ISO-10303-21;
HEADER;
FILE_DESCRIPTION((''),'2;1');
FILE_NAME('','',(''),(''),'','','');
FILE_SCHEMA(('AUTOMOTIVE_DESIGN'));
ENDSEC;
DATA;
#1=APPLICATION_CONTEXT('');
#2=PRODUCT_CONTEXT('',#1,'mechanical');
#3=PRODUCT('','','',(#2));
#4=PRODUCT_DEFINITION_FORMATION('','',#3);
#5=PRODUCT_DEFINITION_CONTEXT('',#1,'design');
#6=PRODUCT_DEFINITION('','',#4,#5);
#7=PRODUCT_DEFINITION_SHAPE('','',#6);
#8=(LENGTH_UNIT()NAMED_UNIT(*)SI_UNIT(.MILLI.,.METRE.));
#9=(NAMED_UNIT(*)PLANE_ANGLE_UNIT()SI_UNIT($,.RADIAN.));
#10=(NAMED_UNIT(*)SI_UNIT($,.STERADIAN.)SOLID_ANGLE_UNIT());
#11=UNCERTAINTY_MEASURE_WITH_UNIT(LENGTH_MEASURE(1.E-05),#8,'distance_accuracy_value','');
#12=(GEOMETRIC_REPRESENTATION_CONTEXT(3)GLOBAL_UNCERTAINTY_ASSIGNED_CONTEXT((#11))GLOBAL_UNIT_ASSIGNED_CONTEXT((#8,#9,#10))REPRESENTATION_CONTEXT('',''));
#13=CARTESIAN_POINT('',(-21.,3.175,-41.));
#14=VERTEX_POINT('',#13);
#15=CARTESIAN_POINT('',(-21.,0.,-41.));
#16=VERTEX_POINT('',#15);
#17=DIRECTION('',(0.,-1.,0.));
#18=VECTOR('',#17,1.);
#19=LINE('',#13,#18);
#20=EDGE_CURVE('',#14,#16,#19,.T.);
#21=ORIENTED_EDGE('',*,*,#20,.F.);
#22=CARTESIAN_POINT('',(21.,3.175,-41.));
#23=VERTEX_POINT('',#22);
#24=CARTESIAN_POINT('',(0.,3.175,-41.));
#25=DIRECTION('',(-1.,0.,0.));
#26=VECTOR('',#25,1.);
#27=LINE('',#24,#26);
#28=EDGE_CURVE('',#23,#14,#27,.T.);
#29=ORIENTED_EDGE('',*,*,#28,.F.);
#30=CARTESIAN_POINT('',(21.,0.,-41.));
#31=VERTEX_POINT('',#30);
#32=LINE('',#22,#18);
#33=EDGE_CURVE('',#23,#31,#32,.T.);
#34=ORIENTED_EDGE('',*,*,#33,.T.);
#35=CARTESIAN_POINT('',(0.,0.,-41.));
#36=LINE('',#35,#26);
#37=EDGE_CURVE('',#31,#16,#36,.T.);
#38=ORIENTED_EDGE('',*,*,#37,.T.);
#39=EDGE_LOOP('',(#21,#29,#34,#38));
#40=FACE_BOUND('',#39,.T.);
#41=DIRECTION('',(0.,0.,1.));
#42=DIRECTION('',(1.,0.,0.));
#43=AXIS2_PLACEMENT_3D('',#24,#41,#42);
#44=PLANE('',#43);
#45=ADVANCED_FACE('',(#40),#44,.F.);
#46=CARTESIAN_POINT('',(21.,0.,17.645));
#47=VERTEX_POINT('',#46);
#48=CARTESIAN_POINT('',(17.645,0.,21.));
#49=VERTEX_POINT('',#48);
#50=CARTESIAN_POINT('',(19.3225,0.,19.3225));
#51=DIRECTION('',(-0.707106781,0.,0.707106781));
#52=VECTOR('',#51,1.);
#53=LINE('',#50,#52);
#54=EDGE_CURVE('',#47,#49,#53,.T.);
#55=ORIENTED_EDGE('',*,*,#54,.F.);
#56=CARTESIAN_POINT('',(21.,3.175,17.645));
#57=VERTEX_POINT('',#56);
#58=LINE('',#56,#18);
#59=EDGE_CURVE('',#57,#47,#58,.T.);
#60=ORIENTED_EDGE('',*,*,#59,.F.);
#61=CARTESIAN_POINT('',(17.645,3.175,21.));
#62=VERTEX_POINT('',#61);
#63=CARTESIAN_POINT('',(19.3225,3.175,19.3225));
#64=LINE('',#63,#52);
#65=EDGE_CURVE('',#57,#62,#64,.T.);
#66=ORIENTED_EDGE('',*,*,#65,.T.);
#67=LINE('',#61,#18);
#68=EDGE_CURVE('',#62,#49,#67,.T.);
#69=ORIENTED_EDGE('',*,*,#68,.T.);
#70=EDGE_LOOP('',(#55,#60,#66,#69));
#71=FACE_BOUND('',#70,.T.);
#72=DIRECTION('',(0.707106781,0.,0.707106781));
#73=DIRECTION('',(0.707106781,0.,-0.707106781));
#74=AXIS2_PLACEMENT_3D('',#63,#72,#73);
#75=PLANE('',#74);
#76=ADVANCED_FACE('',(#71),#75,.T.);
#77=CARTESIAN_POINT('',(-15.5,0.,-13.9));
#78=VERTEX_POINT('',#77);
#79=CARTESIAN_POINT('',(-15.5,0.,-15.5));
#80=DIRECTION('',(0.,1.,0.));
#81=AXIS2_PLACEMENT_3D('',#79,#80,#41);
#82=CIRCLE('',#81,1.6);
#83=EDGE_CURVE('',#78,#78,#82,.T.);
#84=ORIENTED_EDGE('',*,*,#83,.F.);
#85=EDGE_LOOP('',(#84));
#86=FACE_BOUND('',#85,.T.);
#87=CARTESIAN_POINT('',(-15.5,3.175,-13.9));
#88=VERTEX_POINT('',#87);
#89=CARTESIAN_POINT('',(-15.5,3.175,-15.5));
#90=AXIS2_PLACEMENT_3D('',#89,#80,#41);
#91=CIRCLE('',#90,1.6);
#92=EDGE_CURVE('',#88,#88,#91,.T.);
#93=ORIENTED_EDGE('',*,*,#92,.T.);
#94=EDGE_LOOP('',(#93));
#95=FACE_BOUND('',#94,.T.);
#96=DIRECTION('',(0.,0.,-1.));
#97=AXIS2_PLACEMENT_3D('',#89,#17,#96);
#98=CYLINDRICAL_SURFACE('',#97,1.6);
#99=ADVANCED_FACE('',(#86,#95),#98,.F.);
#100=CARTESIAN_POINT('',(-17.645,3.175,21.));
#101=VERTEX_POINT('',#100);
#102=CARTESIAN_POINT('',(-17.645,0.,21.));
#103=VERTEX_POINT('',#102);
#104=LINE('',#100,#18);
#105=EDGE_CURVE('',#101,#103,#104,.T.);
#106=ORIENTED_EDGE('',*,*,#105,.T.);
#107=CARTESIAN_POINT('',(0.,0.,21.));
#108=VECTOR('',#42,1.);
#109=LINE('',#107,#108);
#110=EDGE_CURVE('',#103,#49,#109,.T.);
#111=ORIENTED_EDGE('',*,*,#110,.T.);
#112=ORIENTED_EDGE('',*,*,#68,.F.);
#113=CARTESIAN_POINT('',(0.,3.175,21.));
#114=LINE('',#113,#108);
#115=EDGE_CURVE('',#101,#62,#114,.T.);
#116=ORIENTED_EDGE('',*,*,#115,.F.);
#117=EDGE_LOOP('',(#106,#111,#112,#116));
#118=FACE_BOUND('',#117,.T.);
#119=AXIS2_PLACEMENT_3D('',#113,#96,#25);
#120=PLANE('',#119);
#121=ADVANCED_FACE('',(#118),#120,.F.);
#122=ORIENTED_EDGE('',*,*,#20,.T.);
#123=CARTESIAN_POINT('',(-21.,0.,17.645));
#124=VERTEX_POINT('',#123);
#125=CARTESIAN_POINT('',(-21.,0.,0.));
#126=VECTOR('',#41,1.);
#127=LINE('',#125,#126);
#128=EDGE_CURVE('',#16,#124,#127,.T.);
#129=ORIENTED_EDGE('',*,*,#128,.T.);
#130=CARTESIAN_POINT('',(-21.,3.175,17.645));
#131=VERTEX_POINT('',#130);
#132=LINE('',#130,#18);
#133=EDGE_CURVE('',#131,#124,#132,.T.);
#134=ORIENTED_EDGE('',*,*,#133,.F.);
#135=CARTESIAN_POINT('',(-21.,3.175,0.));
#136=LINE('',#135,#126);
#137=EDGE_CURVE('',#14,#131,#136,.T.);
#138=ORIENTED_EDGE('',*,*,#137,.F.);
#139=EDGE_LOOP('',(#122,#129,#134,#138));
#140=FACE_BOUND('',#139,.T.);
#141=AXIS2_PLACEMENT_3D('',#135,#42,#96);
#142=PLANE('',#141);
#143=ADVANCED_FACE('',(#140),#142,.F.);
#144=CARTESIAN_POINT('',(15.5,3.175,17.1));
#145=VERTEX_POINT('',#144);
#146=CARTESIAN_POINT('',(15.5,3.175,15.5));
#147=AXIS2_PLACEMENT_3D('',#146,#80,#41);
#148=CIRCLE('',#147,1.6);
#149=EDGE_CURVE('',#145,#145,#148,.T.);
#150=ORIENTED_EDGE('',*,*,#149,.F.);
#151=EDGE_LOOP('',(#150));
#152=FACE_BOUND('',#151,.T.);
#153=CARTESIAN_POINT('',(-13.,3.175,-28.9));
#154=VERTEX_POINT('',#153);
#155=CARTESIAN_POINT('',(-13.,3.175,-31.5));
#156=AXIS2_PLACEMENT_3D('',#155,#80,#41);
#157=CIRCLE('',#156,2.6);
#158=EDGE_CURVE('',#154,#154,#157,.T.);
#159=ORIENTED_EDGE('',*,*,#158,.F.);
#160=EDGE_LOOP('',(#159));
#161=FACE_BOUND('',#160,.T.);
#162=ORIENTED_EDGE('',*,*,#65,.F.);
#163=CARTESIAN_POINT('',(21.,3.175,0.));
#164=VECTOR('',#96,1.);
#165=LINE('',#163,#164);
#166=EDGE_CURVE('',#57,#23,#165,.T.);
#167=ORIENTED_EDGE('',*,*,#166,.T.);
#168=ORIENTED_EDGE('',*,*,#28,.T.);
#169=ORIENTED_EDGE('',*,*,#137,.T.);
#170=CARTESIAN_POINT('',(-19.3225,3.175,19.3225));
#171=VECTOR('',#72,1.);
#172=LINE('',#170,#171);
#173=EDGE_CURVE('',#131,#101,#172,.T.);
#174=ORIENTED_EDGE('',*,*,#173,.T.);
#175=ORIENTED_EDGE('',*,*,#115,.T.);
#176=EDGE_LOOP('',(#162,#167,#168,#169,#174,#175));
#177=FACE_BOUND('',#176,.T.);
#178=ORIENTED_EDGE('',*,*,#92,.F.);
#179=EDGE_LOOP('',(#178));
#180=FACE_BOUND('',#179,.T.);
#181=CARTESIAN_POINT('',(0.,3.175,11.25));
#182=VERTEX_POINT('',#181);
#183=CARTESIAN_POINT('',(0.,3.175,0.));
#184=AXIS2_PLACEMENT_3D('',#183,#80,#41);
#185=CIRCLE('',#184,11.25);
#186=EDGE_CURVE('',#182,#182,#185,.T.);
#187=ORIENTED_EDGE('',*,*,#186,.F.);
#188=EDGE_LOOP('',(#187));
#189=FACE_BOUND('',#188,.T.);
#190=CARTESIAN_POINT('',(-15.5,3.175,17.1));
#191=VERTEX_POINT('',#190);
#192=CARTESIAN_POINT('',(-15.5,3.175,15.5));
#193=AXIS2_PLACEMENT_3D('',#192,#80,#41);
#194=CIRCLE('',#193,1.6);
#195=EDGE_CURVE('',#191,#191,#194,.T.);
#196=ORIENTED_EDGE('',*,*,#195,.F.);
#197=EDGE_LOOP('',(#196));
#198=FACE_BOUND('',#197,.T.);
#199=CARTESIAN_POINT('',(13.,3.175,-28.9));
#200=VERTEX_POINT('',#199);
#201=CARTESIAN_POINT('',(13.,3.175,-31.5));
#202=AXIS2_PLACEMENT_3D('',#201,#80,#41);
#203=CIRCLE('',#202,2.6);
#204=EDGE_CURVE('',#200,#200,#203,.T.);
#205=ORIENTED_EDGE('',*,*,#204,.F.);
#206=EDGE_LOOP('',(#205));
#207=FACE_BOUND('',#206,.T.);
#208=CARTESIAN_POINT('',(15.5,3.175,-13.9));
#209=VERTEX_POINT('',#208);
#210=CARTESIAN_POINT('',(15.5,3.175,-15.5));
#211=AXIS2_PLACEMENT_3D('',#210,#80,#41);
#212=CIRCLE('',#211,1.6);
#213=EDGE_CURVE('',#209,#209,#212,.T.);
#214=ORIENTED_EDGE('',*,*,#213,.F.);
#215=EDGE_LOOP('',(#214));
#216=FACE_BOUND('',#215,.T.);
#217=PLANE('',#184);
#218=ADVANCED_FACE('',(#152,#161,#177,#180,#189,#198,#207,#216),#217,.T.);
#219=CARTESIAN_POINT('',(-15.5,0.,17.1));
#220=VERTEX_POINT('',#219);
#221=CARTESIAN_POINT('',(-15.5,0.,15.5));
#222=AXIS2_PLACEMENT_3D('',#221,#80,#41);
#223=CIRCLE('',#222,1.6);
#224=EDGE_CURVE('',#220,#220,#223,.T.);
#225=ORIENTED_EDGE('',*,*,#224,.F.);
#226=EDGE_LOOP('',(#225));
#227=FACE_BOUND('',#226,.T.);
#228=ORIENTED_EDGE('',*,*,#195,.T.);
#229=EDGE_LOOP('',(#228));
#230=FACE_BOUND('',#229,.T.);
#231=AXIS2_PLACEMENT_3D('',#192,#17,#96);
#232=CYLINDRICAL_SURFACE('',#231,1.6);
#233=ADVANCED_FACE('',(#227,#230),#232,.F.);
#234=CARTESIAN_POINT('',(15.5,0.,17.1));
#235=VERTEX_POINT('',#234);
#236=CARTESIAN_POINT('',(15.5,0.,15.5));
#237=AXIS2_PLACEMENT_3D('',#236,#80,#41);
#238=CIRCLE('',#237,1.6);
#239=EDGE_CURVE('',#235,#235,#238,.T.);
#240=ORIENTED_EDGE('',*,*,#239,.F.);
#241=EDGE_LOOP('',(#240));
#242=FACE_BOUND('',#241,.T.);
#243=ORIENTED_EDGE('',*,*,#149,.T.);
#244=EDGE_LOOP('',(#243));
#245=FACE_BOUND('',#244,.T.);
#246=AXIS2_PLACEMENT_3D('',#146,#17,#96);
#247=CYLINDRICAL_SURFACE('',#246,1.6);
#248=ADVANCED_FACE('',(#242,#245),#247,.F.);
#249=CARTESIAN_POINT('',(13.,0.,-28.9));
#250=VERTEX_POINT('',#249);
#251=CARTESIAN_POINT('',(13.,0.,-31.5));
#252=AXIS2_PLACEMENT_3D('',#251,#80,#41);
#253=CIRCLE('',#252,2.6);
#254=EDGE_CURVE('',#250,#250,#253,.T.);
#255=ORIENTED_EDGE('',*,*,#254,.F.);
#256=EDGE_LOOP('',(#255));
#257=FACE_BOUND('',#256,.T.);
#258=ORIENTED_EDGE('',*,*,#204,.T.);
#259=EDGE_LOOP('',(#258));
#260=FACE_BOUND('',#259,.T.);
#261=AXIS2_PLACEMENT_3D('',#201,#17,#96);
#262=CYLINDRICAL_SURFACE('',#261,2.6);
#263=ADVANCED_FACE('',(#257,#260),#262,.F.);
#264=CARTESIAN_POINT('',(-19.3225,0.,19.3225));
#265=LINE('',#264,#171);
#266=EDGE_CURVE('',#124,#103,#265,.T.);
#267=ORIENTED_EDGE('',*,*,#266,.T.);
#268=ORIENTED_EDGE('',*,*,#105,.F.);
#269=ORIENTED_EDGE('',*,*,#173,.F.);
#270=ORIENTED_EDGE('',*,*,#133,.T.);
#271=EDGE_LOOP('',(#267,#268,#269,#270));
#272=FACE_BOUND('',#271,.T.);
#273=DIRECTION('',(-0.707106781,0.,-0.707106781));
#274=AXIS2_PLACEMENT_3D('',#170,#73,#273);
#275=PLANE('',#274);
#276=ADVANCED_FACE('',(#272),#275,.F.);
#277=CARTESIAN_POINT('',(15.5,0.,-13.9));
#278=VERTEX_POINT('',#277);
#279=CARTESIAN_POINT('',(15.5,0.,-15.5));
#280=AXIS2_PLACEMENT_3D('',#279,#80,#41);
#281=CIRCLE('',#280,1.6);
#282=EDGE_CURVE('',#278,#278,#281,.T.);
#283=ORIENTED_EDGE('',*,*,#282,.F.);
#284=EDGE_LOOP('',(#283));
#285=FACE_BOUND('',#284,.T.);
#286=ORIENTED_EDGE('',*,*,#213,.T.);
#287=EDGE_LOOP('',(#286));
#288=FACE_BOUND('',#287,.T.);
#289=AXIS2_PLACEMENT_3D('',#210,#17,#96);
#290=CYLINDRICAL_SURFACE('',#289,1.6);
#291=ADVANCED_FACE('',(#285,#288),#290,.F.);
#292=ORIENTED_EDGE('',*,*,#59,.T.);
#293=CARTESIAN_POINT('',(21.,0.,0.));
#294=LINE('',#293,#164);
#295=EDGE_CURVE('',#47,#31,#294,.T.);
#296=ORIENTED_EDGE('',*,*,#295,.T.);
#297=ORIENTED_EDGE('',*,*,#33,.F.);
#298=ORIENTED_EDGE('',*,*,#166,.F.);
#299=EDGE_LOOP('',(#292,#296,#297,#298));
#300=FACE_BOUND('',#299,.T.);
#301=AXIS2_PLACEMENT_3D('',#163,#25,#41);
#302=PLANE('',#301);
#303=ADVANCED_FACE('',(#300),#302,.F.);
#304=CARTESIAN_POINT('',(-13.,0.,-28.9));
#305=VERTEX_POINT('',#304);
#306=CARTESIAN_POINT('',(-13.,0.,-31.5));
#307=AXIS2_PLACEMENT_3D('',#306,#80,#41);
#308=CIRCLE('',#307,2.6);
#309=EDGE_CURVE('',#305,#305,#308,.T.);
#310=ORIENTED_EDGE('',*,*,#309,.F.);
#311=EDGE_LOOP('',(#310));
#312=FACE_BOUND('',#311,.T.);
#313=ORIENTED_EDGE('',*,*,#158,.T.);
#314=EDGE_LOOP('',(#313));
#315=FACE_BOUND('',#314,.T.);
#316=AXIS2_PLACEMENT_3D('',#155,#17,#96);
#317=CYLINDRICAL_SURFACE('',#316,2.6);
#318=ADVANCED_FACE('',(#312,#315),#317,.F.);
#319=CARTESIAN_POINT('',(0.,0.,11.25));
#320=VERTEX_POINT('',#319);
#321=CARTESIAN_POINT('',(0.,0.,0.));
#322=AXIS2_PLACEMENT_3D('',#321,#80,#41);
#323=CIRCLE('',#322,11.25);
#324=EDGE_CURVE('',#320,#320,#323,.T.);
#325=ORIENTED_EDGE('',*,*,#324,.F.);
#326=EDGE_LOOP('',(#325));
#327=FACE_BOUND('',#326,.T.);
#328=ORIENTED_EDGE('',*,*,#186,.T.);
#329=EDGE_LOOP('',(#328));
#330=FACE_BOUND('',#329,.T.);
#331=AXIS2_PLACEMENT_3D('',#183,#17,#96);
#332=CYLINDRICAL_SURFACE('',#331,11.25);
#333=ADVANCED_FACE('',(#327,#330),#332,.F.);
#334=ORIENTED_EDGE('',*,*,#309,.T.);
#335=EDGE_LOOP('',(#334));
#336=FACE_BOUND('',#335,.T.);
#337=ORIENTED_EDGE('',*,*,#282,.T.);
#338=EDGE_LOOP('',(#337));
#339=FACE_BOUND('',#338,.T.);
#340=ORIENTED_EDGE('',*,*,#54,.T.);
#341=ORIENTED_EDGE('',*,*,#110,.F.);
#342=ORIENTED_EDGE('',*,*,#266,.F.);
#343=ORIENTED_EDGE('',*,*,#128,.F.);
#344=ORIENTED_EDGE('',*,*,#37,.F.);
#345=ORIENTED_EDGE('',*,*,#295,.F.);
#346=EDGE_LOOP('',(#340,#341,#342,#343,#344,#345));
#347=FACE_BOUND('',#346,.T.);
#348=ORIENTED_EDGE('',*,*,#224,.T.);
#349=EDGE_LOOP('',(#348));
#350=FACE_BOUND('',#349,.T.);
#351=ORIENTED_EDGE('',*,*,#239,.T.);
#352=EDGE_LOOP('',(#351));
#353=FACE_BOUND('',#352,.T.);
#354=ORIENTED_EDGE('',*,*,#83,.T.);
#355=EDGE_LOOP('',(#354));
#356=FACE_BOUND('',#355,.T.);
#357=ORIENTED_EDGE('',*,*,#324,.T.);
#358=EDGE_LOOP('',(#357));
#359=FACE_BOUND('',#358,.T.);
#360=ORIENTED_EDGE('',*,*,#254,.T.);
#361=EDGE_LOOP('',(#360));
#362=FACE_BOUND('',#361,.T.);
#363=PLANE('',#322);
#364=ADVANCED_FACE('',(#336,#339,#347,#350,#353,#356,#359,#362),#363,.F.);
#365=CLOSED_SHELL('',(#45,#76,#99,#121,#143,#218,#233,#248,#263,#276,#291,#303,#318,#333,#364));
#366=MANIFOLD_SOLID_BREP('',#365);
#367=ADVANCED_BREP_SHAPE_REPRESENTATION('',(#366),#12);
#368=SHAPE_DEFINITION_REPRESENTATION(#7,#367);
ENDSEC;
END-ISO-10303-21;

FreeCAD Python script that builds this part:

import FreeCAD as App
import Part
import Sketcher

V = App.Vector
Q = App.Units.Quantity


def add_polygon(sketch, points):
    """Adds a closed chain of lines whose ends are joined by coincident constraints."""
    first, n = sketch.GeometryCount, len(points)
    for a, b in zip(points, points[1:] + points[:1]):
        sketch.addGeometry(Part.LineSegment(App.Vector(*a, 0), App.Vector(*b, 0)), False)
    for i in range(n):
        sketch.addConstraint(Sketcher.Constraint("Coincident", first + i, 2, first + (i + 1) % n, 1))

doc = App.newDocument("Part")
params = doc.addObject("Spreadsheet::Sheet", "Params")
for row, (alias, value) in enumerate([
    ("sketch1_diameter", "3.2 mm"),
    ("sketch1_diameter2", "22.5 mm"),
    ("sketch1_diameter3", "5.2 mm"),
    ("sketch1_width", "42 mm"),
    ("sketch1_width2", "35.29 mm"),
    ("pad1_length", "3.175 mm"),
], start=1):
    params.set(f"A{row}", alias)
    params.set(f"B{row}", "=" + value)
    params.setAlias(f"B{row}", alias)

body = doc.addObject("PartDesign::Body", "Body")

# Sketch on XZ plane
sketch1 = body.newObject("Sketcher::SketchObject", "Sketch")
sketch1.AttachmentSupport = (doc.getObject("XZ_Plane"), [""])
sketch1.MapMode = "FlatFace"
add_polygon(sketch1, [(21, -41), (-21, -41), (-21, 17.6), (-17.6, 21), (17.6, 21), (21, 17.6)])  # lines 0-5
sketch1.addGeometry(Part.Circle(V(-15.5, 15.5, 0), V(0, 0, 1), 1.6), False)  # 6
sketch1.addGeometry(Part.Circle(V(15.5, 15.5, 0), V(0, 0, 1), 1.6), False)  # 7
sketch1.addGeometry(Part.Circle(V(0, 0, 0), V(0, 0, 1), 11.2), False)  # 8
sketch1.addGeometry(Part.Circle(V(-15.5, -15.5, 0), V(0, 0, 1), 1.6), False)  # 9
sketch1.addGeometry(Part.Circle(V(-13, -31.5, 0), V(0, 0, 1), 2.6), False)  # 10
sketch1.addGeometry(Part.Circle(V(15.5, -15.5, 0), V(0, 0, 1), 1.6), False)  # 11
sketch1.addGeometry(Part.Circle(V(13, -31.5, 0), V(0, 0, 1), 2.6), False)  # 12
sketch1.addConstraint([
    Sketcher.Constraint("Horizontal", 0),
    Sketcher.Constraint("Vertical", 1),
    Sketcher.Constraint("Horizontal", 3),
    Sketcher.Constraint("Vertical", 5),
    Sketcher.Constraint("Coincident", 8, 3, -1, 1),
    Sketcher.Constraint("Equal", 6, 7),
    Sketcher.Constraint("Equal", 7, 9),
    Sketcher.Constraint("Equal", 9, 11),
    Sketcher.Constraint("Equal", 10, 12),
    Sketcher.Constraint("Symmetric", 7, 3, 9, 3, -1, 1),
    Sketcher.Constraint("Symmetric", 6, 3, 11, 3, -1, 1),
    Sketcher.Constraint("Symmetric", 6, 3, 7, 3, -2),
    Sketcher.Constraint("Symmetric", 10, 3, 12, 3, -2),
    Sketcher.Constraint("Symmetric", 1, 2, 4, 2, -2),
    Sketcher.Constraint("Perpendicular", 2, 4),
    Sketcher.Constraint("Equal", 2, 4),
    Sketcher.Constraint("Diameter", 6, Q("3.2 mm")),
    Sketcher.Constraint("Diameter", 8, Q("22.5 mm")),
    Sketcher.Constraint("Diameter", 10, Q("5.2 mm")),
    Sketcher.Constraint("DistanceX", 0, 2, 0, 1, Q("42 mm")),
    Sketcher.Constraint("DistanceX", 10, 3, -1, 1, Q("13 mm")),
    Sketcher.Constraint("DistanceY", 0, 2, -1, 1, Q("41 mm")),
    Sketcher.Constraint("DistanceY", -1, 1, 2, 2, Q("21 mm")),
    Sketcher.Constraint("DistanceX", 6, 3, 7, 3, Q("31 mm")),
    Sketcher.Constraint("DistanceY", 9, 3, 6, 3, Q("31 mm")),
    Sketcher.Constraint("DistanceY", 10, 3, 9, 3, Q("16 mm")),
    Sketcher.Constraint("DistanceX", 3, 1, 3, 2, Q("35.29 mm")),
])
sketch1.setExpression("Constraints[22]", "Params.sketch1_diameter")
sketch1.setExpression("Constraints[23]", "Params.sketch1_diameter2")
sketch1.setExpression("Constraints[24]", "Params.sketch1_diameter3")
sketch1.setExpression("Constraints[25]", "Params.sketch1_width")
sketch1.setExpression("Constraints[32]", "Params.sketch1_width2")
pad1 = body.newObject("PartDesign::Pad", "Pad")
pad1.Profile = sketch1
pad1.setExpression("Length", "Params.pad1_length")
pad1.Reversed = True

doc.recompute()
